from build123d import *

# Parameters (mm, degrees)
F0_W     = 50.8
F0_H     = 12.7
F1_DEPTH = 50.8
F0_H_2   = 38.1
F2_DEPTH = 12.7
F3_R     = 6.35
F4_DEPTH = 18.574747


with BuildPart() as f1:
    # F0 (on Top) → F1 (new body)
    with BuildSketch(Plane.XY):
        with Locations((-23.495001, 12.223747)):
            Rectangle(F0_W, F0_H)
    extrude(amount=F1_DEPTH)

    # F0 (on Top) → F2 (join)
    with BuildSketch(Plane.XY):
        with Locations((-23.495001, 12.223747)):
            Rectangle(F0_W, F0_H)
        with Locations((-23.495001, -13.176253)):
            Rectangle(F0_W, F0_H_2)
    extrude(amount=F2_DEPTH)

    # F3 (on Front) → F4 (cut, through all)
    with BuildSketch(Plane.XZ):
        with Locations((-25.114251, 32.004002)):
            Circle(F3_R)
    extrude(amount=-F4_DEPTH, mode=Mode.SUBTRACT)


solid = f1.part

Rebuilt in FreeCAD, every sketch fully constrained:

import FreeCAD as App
import Part
import Sketcher
Q = App.Units.Quantity

doc = App.newDocument("Part")
params = doc.addObject("Spreadsheet::Sheet", "Params")
for row, (alias, value) in enumerate([
    ("sketch1_width", "2 in"),
    ("sketch1_height", "0.5 in"),
    ("pad1_length", "2 in"),
    ("sketch2_width", "2 in"),
    ("pad2_length", "0.5 in"),
    ("sketch3_diameter", "0.5 in"),
], start=1):
    params.set(f"A{row}", alias)
    params.set(f"B{row}", "=" + value)
    params.setAlias(f"B{row}", alias)

body = doc.addObject("PartDesign::Body", "Body")

sketch1 = doc.addObject("Sketcher::SketchObject", "Sketch")
body.addObject(sketch1)
sketch1.AttachmentSupport = (doc.XY_Plane, [""])
sketch1.MapMode = "FlatFace"
sketch1.addGeometry([
    Part.LineSegment(App.Vector(-49, 19, 0), App.Vector(-49, 6, 0)),
    Part.LineSegment(App.Vector(-49, 6, 0), App.Vector(2, 6, 0)),
    Part.LineSegment(App.Vector(2, 6, 0), App.Vector(2, 19, 0)),
    Part.LineSegment(App.Vector(2, 19, 0), App.Vector(-49, 19, 0)),
], False)
sketch1.addConstraint([
    Sketcher.Constraint("Coincident", 0, 2, 1, 1),
    Sketcher.Constraint("Coincident", 1, 2, 2, 1),
    Sketcher.Constraint("Coincident", 2, 2, 3, 1),
    Sketcher.Constraint("Coincident", 3, 2, 0, 1),
    Sketcher.Constraint("Vertical", 0),
    Sketcher.Constraint("Horizontal", 1),
    Sketcher.Constraint("Vertical", 2),
    Sketcher.Constraint("Horizontal", 3),
    Sketcher.Constraint("DistanceX", 1, 1, 1, 2, Q("2 in")),
    Sketcher.Constraint("DistanceY", 0, 2, 0, 1, Q("0.5 in")),
    Sketcher.Constraint("DistanceX", 0, 2, -1, 1, Q("1.925 in")),
    Sketcher.Constraint("DistanceY", -1, 1, 0, 2, Q("5.873747 mm")),
])
sketch1.setExpression("Constraints[8]", "Params.sketch1_width")
sketch1.setExpression("Constraints[9]", "Params.sketch1_height")
pad1 = doc.addObject("PartDesign::Pad", "Pad")
body.addObject(pad1)
pad1.Profile = sketch1
pad1.setExpression("Length", "Params.pad1_length")

sketch2 = doc.addObject("Sketcher::SketchObject", "Sketch001")
body.addObject(sketch2)
sketch2.AttachmentSupport = (doc.XY_Plane, [""])
sketch2.MapMode = "FlatFace"
sketch2.addGeometry([
    Part.LineSegment(App.Vector(-49, 19, 0), App.Vector(-49, -32, 0)),
    Part.LineSegment(App.Vector(-49, -32, 0), App.Vector(2, -32, 0)),
    Part.LineSegment(App.Vector(2, -32, 0), App.Vector(2, 19, 0)),
    Part.LineSegment(App.Vector(2, 19, 0), App.Vector(-49, 19, 0)),
], False)
sketch2.addConstraint([
    Sketcher.Constraint("Coincident", 0, 2, 1, 1),
    Sketcher.Constraint("Coincident", 1, 2, 2, 1),
    Sketcher.Constraint("Coincident", 2, 2, 3, 1),
    Sketcher.Constraint("Coincident", 3, 2, 0, 1),
    Sketcher.Constraint("Vertical", 0),
    Sketcher.Constraint("Horizontal", 1),
    Sketcher.Constraint("Vertical", 2),
    Sketcher.Constraint("Horizontal", 3),
    Sketcher.Constraint("Equal", 3, 0),
    Sketcher.Constraint("DistanceX", 1, 1, 1, 2, Q("2 in")),
    Sketcher.Constraint("DistanceX", 0, 2, -1, 1, Q("1.925 in")),
    Sketcher.Constraint("DistanceY", 0, 2, -1, 1, Q("32.226253 mm")),
])
sketch2.setExpression("Constraints[9]", "Params.sketch2_width")
pad2 = doc.addObject("PartDesign::Pad", "Pad001")
body.addObject(pad2)
pad2.Profile = sketch2
pad2.setExpression("Length", "Params.pad2_length")

sketch3 = doc.addObject("Sketcher::SketchObject", "Sketch002")
body.addObject(sketch3)
sketch3.AttachmentSupport = (doc.XZ_Plane, [""])
sketch3.MapMode = "FlatFace"
sketch3.addGeometry(Part.Circle(App.Vector(-25, 32, 0), App.Vector(0, 0, 1), 6), False)
sketch3.addConstraint([
    Sketcher.Constraint("Diameter", 0, Q("0.5 in")),
    Sketcher.Constraint("DistanceY", -1, 1, 0, 3, Q("1.2600001 in")),
    Sketcher.Constraint("DistanceX", 0, 3, -1, 1, Q("25.114251 mm")),
])
sketch3.setExpression("Constraints[0]", "Params.sketch3_diameter")
pocket1 = doc.addObject("PartDesign::Pocket", "Pocket")
body.addObject(pocket1)
pocket1.Profile = sketch3
pocket1.Type = "ThroughAll"

doc.recompute()
